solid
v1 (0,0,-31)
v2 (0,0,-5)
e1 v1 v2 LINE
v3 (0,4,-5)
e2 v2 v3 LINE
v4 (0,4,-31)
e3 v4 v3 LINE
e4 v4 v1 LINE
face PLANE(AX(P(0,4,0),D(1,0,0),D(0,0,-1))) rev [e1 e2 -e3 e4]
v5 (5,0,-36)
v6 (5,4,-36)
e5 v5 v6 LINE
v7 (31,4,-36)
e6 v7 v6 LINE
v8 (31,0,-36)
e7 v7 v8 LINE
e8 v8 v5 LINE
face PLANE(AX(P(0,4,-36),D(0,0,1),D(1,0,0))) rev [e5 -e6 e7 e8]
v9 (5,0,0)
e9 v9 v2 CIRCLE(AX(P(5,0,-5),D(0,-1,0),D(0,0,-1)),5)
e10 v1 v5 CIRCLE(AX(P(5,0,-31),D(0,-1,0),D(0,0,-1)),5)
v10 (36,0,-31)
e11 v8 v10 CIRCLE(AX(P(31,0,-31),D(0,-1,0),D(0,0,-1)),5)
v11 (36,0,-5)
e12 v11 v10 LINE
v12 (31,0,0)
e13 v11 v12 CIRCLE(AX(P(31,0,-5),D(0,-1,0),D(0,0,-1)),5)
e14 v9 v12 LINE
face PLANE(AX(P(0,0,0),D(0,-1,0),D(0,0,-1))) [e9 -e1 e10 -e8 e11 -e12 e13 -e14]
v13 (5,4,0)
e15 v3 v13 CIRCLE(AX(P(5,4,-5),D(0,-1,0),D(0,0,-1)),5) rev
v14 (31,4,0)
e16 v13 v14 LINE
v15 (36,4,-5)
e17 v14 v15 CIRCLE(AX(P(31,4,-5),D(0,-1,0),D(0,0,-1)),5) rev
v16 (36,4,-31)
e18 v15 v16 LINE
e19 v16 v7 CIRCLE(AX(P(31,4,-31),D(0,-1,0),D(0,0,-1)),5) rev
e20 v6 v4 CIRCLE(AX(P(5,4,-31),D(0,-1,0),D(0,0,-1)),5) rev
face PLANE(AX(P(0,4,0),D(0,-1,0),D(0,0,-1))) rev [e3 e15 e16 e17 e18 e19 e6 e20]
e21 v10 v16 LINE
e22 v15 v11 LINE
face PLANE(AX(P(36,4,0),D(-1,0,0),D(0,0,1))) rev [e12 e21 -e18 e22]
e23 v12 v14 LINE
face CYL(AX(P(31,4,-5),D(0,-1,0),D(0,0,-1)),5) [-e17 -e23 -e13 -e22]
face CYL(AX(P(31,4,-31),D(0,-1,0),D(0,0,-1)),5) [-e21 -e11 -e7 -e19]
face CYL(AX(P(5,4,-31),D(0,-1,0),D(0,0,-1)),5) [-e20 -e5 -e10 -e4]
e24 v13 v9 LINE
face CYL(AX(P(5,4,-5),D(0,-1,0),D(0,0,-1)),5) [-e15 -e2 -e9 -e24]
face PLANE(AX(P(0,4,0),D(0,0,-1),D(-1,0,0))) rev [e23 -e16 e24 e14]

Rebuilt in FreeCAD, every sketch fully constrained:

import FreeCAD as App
import Part
import Sketcher

V = App.Vector
Q = App.Units.Quantity


def edges_at(feature, points):
    """Names of the edges that pass closest to the given points."""
    edges = feature.Shape.Edges
    near = lambda p: min(range(len(edges)), key=lambda i: edges[i].distToShape(Part.Vertex(*p))[0])
    return sorted({f"Edge{near(p) + 1}" for p in points})

doc = App.newDocument("Part")
body = doc.addObject("PartDesign::Body", "Body")

# Sketch on XZ plane
sketch1 = body.newObject("Sketcher::SketchObject", "Sketch")
sketch1.AttachmentSupport = (doc.getObject("XZ_Plane"), [""])
sketch1.MapMode = "FlatFace"
sketch1.addGeometry(Part.LineSegment(V(0, -36, 0), V(0, 0, 0)), False)
sketch1.addGeometry(Part.LineSegment(V(0, 0, 0), V(36, 0, 0)), False)
sketch1.addGeometry(Part.LineSegment(V(36, 0, 0), V(36, -36, 0)), False)
sketch1.addGeometry(Part.LineSegment(V(36, -36, 0), V(0, -36, 0)), False)
sketch1.addConstraint(Sketcher.Constraint("Coincident", 0, 2, 1, 1))
sketch1.addConstraint(Sketcher.Constraint("Coincident", 1, 2, 2, 1))
sketch1.addConstraint(Sketcher.Constraint("Coincident", 2, 2, 3, 1))
sketch1.addConstraint(Sketcher.Constraint("Coincident", 3, 2, 0, 1))
sketch1.addConstraint(Sketcher.Constraint("Vertical", 0))
sketch1.addConstraint(Sketcher.Constraint("Horizontal", 1))
sketch1.addConstraint(Sketcher.Constraint("Vertical", 2))
sketch1.addConstraint(Sketcher.Constraint("Horizontal", 3))
sketch1.addConstraint(Sketcher.Constraint("Coincident", 0, 2, -1, 1))
sketch1.addConstraint(Sketcher.Constraint("Equal", 3, 0))
sketch1.addConstraint(Sketcher.Constraint("DistanceX", 1, 1, 1, 2, Q("36 mm")))
pad1 = body.newObject("PartDesign::Pad", "Pad")
pad1.Profile = sketch1
pad1.Length = 4
pad1.Reversed = True
doc.recompute()

fillet = body.newObject("PartDesign::Fillet", "Fillet")
fillet.Base = (pad1, edges_at(pad1, [
    (0, 2, -36),
    (36, 2, -36),
    (36, 2, 0),
    (0, 2, 0),
]))
fillet.Radius = 5

doc.recompute()
